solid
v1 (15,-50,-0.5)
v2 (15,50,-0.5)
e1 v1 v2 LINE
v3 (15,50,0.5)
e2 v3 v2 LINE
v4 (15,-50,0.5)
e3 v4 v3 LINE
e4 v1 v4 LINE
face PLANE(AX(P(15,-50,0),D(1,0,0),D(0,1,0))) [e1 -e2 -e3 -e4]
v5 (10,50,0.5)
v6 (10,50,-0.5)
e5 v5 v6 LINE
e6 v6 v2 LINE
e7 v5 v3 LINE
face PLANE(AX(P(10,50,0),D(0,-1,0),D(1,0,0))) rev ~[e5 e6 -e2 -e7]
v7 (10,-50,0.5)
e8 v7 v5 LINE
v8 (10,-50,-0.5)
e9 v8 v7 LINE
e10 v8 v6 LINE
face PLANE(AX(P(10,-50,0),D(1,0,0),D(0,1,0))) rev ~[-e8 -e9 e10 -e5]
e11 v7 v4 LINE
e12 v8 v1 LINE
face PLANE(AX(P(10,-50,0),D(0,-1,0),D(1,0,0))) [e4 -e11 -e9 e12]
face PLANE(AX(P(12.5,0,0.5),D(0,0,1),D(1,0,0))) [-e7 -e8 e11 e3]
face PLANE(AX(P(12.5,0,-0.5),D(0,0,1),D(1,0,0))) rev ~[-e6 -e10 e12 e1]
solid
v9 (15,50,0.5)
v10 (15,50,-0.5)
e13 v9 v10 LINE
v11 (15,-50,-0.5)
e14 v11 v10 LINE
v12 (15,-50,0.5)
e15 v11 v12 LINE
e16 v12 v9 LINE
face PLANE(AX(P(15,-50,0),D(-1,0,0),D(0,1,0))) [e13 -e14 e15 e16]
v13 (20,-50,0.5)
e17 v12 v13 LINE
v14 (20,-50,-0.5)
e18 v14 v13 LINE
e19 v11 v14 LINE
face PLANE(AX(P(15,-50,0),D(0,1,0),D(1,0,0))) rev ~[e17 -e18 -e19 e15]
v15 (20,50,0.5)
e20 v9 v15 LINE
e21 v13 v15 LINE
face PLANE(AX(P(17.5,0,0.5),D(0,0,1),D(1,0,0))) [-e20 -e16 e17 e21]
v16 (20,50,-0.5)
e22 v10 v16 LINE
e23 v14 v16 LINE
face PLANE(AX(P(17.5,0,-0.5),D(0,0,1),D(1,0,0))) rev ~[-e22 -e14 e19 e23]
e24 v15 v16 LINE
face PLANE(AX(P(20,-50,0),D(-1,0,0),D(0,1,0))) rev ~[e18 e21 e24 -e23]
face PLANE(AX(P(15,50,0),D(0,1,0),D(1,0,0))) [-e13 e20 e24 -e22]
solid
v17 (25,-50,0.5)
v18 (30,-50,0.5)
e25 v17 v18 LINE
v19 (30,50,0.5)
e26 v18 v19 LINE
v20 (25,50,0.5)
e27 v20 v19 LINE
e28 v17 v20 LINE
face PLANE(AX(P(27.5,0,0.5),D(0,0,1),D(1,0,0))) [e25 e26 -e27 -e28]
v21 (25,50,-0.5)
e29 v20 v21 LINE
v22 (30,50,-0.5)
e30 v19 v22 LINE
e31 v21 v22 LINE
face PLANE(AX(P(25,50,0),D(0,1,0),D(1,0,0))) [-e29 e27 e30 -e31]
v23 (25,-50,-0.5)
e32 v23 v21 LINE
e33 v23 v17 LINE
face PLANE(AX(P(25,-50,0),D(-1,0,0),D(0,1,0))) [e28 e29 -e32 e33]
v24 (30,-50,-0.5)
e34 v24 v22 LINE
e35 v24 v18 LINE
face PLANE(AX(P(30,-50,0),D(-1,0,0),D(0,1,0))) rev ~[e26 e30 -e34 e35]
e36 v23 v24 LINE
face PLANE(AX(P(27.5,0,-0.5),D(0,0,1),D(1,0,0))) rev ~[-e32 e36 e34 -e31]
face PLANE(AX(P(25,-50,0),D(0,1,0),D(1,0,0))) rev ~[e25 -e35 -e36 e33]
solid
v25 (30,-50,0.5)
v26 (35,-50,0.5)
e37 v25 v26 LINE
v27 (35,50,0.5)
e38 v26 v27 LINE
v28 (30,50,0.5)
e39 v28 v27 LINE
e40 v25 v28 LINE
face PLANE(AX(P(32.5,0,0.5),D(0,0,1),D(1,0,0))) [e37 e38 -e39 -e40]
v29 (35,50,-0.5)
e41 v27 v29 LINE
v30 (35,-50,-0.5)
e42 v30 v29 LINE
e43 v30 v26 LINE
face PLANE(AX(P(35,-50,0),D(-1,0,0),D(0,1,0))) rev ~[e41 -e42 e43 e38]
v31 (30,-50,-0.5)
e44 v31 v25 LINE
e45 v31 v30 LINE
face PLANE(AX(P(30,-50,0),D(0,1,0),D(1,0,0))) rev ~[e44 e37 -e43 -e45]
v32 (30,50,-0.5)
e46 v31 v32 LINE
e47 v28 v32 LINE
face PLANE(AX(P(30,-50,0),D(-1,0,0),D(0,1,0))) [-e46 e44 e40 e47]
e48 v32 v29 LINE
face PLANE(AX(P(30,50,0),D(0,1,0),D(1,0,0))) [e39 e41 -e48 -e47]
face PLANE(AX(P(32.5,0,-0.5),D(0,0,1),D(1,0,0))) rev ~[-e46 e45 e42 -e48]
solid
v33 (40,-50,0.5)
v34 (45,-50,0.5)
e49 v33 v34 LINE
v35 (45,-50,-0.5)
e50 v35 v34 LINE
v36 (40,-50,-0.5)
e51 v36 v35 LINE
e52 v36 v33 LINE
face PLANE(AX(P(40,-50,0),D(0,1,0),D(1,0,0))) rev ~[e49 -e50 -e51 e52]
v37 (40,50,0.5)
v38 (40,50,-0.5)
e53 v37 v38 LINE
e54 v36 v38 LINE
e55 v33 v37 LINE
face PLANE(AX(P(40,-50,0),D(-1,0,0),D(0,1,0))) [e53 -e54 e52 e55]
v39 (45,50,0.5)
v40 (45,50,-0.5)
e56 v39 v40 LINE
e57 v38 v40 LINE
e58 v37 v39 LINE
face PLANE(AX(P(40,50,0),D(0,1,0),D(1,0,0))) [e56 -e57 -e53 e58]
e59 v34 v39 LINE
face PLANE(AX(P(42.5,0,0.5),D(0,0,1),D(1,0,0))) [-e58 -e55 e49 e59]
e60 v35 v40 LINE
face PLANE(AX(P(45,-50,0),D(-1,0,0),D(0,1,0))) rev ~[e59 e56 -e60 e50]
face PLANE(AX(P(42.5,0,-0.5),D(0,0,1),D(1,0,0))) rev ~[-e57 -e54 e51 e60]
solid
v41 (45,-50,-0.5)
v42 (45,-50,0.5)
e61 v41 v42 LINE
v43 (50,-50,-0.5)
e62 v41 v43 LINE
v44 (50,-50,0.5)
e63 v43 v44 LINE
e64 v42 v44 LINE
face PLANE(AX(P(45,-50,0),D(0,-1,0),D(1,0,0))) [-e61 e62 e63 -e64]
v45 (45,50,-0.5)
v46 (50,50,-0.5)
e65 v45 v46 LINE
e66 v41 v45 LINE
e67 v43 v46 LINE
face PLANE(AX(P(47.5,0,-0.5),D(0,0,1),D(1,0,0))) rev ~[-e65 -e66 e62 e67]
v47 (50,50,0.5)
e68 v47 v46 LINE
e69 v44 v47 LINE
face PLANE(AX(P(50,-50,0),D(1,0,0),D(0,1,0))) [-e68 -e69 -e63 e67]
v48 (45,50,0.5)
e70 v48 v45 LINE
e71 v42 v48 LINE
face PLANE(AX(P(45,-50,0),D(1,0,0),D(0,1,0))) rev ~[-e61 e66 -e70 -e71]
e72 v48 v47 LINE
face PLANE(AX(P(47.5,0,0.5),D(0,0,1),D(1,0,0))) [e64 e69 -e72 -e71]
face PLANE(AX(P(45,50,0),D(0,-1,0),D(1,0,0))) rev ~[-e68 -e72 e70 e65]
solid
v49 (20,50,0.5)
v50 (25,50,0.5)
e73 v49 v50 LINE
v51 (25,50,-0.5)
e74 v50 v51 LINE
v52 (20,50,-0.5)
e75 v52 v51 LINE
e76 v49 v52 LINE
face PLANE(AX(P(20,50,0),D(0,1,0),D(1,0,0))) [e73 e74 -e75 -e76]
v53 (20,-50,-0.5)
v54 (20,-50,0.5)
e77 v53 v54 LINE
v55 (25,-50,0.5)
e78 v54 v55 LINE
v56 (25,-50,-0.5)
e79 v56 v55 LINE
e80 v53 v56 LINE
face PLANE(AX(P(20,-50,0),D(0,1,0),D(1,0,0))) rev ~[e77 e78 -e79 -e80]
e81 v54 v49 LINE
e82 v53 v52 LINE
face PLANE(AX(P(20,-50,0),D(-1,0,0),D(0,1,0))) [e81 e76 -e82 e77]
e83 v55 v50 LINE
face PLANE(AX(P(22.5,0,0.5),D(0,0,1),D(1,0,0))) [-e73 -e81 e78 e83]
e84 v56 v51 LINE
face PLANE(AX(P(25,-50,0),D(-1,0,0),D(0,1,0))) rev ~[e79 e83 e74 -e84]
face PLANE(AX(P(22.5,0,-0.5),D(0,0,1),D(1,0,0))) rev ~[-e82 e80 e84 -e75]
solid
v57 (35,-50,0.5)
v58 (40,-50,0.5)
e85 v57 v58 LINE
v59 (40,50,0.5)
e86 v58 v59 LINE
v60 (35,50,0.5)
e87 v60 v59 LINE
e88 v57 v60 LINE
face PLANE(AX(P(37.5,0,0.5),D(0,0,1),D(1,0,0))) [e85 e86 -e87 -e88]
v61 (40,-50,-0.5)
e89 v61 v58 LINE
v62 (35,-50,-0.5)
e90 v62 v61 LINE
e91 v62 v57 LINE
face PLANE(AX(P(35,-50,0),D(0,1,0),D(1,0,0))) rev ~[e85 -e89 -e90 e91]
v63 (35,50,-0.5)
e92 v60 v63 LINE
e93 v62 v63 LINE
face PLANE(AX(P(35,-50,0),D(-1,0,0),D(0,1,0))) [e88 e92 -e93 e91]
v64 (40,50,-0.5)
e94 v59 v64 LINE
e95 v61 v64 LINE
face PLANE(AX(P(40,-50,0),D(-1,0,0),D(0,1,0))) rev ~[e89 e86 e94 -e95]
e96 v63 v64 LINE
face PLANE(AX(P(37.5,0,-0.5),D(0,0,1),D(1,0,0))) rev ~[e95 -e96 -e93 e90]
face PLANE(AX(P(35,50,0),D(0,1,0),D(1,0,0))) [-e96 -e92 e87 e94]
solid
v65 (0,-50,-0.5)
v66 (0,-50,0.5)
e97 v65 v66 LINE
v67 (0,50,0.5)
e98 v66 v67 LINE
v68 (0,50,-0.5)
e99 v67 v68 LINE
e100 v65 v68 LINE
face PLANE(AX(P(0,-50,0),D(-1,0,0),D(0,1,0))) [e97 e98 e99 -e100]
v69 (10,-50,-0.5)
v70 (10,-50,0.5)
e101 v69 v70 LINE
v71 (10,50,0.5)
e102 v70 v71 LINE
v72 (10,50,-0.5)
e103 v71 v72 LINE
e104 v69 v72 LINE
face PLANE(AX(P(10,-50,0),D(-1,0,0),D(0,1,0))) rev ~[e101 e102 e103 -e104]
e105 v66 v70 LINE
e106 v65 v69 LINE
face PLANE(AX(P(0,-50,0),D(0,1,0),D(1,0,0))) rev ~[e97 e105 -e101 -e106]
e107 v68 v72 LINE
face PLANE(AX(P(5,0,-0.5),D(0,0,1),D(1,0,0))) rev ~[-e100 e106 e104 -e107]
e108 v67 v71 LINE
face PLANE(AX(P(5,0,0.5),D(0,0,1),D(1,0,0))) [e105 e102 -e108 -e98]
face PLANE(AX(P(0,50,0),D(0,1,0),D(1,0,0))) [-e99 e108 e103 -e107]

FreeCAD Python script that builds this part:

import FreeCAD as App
import Part
import Sketcher
from FreeCAD import Vector


def add_polygon(sketch, points):
    """Adds a closed chain of lines whose ends are joined by coincident constraints."""
    first, n = sketch.GeometryCount, len(points)
    for a, b in zip(points, points[1:] + points[:1]):
        sketch.addGeometry(Part.LineSegment(App.Vector(*a, 0), App.Vector(*b, 0)), False)
    for i in range(n):
        sketch.addConstraint(Sketcher.Constraint("Coincident", first + i, 2, first + (i + 1) % n, 1))

doc = App.newDocument("Part")
body = doc.addObject("PartDesign::Body", "Body")
body.AllowCompound = True

sketch1 = body.newObject("Sketcher::SketchObject", "Sketch")
sketch1.AttachmentSupport = (doc.getObject("XY_Plane"), [""])
sketch1.MapMode = "FlatFace"
add_polygon(sketch1, [(0, 50), (0, -50), (10, -50), (10, 50)])
add_polygon(sketch1, [(15, 50), (15, -50), (20, -50), (20, 50)])
add_polygon(sketch1, [(25, 50), (25, -50), (30, -50), (30, 50)])
add_polygon(sketch1, [(35, 50), (35, -50), (40, -50), (40, 50)])
add_polygon(sketch1, [(45, 50), (45, -50), (50, -50), (50, 50)])
sketch1.addConstraint(Sketcher.Constraint("Vertical", 0))
sketch1.addConstraint(Sketcher.Constraint("Horizontal", 1))
sketch1.addConstraint(Sketcher.Constraint("Vertical", 2))
sketch1.addConstraint(Sketcher.Constraint("Horizontal", 3))
sketch1.addConstraint(Sketcher.Constraint("Vertical", 4))
sketch1.addConstraint(Sketcher.Constraint("Horizontal", 5))
sketch1.addConstraint(Sketcher.Constraint("Vertical", 6))
sketch1.addConstraint(Sketcher.Constraint("Horizontal", 7))
sketch1.addConstraint(Sketcher.Constraint("Vertical", 8))
sketch1.addConstraint(Sketcher.Constraint("Horizontal", 9))
sketch1.addConstraint(Sketcher.Constraint("Vertical", 10))
sketch1.addConstraint(Sketcher.Constraint("Horizontal", 11))
sketch1.addConstraint(Sketcher.Constraint("Vertical", 12))
sketch1.addConstraint(Sketcher.Constraint("Horizontal", 13))
sketch1.addConstraint(Sketcher.Constraint("Vertical", 14))
sketch1.addConstraint(Sketcher.Constraint("Horizontal", 15))
sketch1.addConstraint(Sketcher.Constraint("Vertical", 16))
sketch1.addConstraint(Sketcher.Constraint("Horizontal", 17))
sketch1.addConstraint(Sketcher.Constraint("Vertical", 18))
sketch1.addConstraint(Sketcher.Constraint("Horizontal", 19))
sketch1.addConstraint(Sketcher.Constraint("Symmetric", 0, 2, 3, 2, -1, 1))
sketch1.addConstraint(Sketcher.Constraint("Horizontal", 1, 2, 4, 2))
sketch1.addConstraint(Sketcher.Constraint("Horizontal", 3, 2, 6, 2))
sketch1.addConstraint(Sketcher.Constraint("Horizontal", 5, 2, 8, 2))
sketch1.addConstraint(Sketcher.Constraint("Horizontal", 7, 2, 10, 2))
sketch1.addConstraint(Sketcher.Constraint("Horizontal", 9, 2, 12, 2))
sketch1.addConstraint(Sketcher.Constraint("Horizontal", 11, 2, 14, 2))
sketch1.addConstraint(Sketcher.Constraint("Horizontal", 13, 2, 16, 2))
sketch1.addConstraint(Sketcher.Constraint("Horizontal", 15, 2, 18, 2))
sketch1.addConstraint(Sketcher.Constraint("Equal", 7, 9))
sketch1.addConstraint(Sketcher.Constraint("Equal", 11, 13))
sketch1.addConstraint(Sketcher.Constraint("Equal", 15, 17))
sketch1.addConstraint(Sketcher.Constraint("DistanceX", 1, 1, 1, 2, 10.0))
sketch1.addConstraint(Sketcher.Constraint("DistanceX", 5, 1, 5, 2, 5.0))
sketch1.addConstraint(Sketcher.Constraint("DistanceY", 0, 2, 0, 1, 100.0))
sketch1.addConstraint(Sketcher.Constraint("DistanceX", -1, 1, 4, 2, 15.0))
sketch1.addConstraint(Sketcher.Constraint("DistanceX", -1, 1, 8, 2, 25.0))
sketch1.addConstraint(Sketcher.Constraint("DistanceX", -1, 1, 12, 2, 35.0))
sketch1.addConstraint(Sketcher.Constraint("DistanceX", -1, 1, 16, 2, 45.0))
pad1 = body.newObject("PartDesign::Pad", "Pad")
pad1.Profile = sketch1
pad1.Length = 1
pad1.Midplane = True
body2 = doc.addObject("PartDesign::Body", "Body001")
body2.AllowCompound = True

sketch2 = body2.newObject("Sketcher::SketchObject", "Sketch001")
sketch2.AttachmentSupport = (doc.getObject("XY_Plane001"), [""])
sketch2.MapMode = "FlatFace"
add_polygon(sketch2, [(40, 50), (40, -50), (45, -50), (45, 50)])
add_polygon(sketch2, [(30, 50), (30, -50), (35, -50), (35, 50)])
add_polygon(sketch2, [(20, 50), (20, -50), (25, -50), (25, 50)])
add_polygon(sketch2, [(10, 50), (10, -50), (15, -50), (15, 50)])
sketch2.addConstraint(Sketcher.Constraint("Vertical", 0))
sketch2.addConstraint(Sketcher.Constraint("Horizontal", 1))
sketch2.addConstraint(Sketcher.Constraint("Vertical", 2))
sketch2.addConstraint(Sketcher.Constraint("Horizontal", 3))
sketch2.addConstraint(Sketcher.Constraint("Vertical", 4))
sketch2.addConstraint(Sketcher.Constraint("Horizontal", 5))
sketch2.addConstraint(Sketcher.Constraint("Vertical", 6))
sketch2.addConstraint(Sketcher.Constraint("Horizontal", 7))
sketch2.addConstraint(Sketcher.Constraint("Vertical", 8))
sketch2.addConstraint(Sketcher.Constraint("Horizontal", 9))
sketch2.addConstraint(Sketcher.Constraint("Vertical", 10))
sketch2.addConstraint(Sketcher.Constraint("Horizontal", 11))
sketch2.addConstraint(Sketcher.Constraint("Vertical", 12))
sketch2.addConstraint(Sketcher.Constraint("Horizontal", 13))
sketch2.addConstraint(Sketcher.Constraint("Vertical", 14))
sketch2.addConstraint(Sketcher.Constraint("Horizontal", 15))
sketch2.addConstraint(Sketcher.Constraint("Horizontal", 1, 2, 4, 2))
sketch2.addConstraint(Sketcher.Constraint("Horizontal", 3, 2, 6, 2))
sketch2.addConstraint(Sketcher.Constraint("Horizontal", 5, 2, 8, 2))
sketch2.addConstraint(Sketcher.Constraint("Horizontal", 7, 2, 10, 2))
sketch2.addConstraint(Sketcher.Constraint("Horizontal", 9, 2, 12, 2))
sketch2.addConstraint(Sketcher.Constraint("Horizontal", 11, 2, 14, 2))
sketch2.addConstraint(Sketcher.Constraint("Equal", 3, 5))
sketch2.addConstraint(Sketcher.Constraint("Equal", 7, 9))
sketch2.addConstraint(Sketcher.Constraint("Equal", 11, 13))
sketch2.addConstraint(Sketcher.Constraint("DistanceX", 1, 1, 1, 2, 5.0))
sketch2.addConstraint(Sketcher.Constraint("DistanceY", 0, 2, 0, 1, 100.0))
sketch2.addConstraint(Sketcher.Constraint("DistanceX", -1, 1, 0, 2, 40.0))
sketch2.addConstraint(Sketcher.Constraint("DistanceY", 0, 2, -1, 1, 50.0))
sketch2.addConstraint(Sketcher.Constraint("DistanceX", -1, 1, 4, 2, 30.0))
sketch2.addConstraint(Sketcher.Constraint("DistanceX", -1, 1, 8, 2, 20.0))
sketch2.addConstraint(Sketcher.Constraint("DistanceX", -1, 1, 12, 2, 10.0))
pad2 = body2.newObject("PartDesign::Pad", "Pad001")
pad2.Profile = sketch2
pad2.Length = 1
pad2.Midplane = True

doc.recompute()
